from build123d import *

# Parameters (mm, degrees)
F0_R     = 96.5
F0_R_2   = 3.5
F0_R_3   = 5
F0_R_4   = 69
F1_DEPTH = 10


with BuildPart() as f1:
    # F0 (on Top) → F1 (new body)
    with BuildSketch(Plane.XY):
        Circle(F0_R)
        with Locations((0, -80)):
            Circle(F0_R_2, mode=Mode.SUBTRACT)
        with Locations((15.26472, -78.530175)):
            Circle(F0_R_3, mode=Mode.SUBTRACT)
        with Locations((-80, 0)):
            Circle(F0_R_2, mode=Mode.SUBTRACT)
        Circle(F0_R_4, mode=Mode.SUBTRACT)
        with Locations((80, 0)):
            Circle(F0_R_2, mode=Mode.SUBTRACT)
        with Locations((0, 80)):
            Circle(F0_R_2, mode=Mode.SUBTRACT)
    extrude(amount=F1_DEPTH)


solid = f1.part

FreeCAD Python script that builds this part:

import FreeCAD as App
import Part
import Sketcher

doc = App.newDocument("Part")
params = doc.addObject("Spreadsheet::Sheet", "Params")
for row, (alias, value) in enumerate([
    ("sketch1_diameter", "193 mm"),
    ("sketch1_diameter2", "7 mm"),
    ("sketch1_diameter3", "10 mm"),
    ("sketch1_diameter4", "138 mm"),
    ("pad1_length", "10 mm"),
], start=1):
    params.set(f"A{row}", alias)
    params.set(f"B{row}", "=" + value)
    params.setAlias(f"B{row}", alias)

body = doc.addObject("PartDesign::Body", "Body")

# Sketch on XY plane
sketch1 = body.newObject("Sketcher::SketchObject", "Sketch")
sketch1.AttachmentSupport = (doc.getObject("XY_Plane"), [""])
sketch1.MapMode = "FlatFace"
sketch1.addGeometry(Part.Circle(App.Vector(0, 0, 0), App.Vector(0, 0, 1), 96.5), False)
sketch1.addGeometry(Part.Circle(App.Vector(0, -80, 0), App.Vector(0, 0, 1), 3.5), False)
sketch1.addGeometry(Part.Circle(App.Vector(15.3, -78.5, 0), App.Vector(0, 0, 1), 5), False)
sketch1.addGeometry(Part.Circle(App.Vector(-80, 0, 0), App.Vector(0, 0, 1), 3.5), False)
sketch1.addGeometry(Part.Circle(App.Vector(0, 0, 0), App.Vector(0, 0, 1), 69), False)
sketch1.addGeometry(Part.Circle(App.Vector(80, 0, 0), App.Vector(0, 0, 1), 3.5), False)
sketch1.addGeometry(Part.Circle(App.Vector(0, 80, 0), App.Vector(0, 0, 1), 3.5), False)
sketch1.addConstraint(Sketcher.Constraint("Coincident", 0, 3, -1, 1))
sketch1.addConstraint(Sketcher.Constraint("Coincident", 4, 3, -1, 1))
sketch1.addConstraint(Sketcher.Constraint("Equal", 1, 3))
sketch1.addConstraint(Sketcher.Constraint("Equal", 3, 5))
sketch1.addConstraint(Sketcher.Constraint("Equal", 5, 6))
sketch1.addConstraint(Sketcher.Constraint("Symmetric", 3, 3, 5, 3, -1, 1))
sketch1.addConstraint(Sketcher.Constraint("Symmetric", 1, 3, 6, 3, -1, 1))
sketch1.addConstraint(Sketcher.Constraint("PointOnObject", 1, 3, -2))
sketch1.addConstraint(Sketcher.Constraint("PointOnObject", 3, 3, -1))
sketch1.addConstraint(Sketcher.Constraint("Diameter", 0, 193.0))
sketch1.addConstraint(Sketcher.Constraint("Diameter", 1, 7.0))
sketch1.addConstraint(Sketcher.Constraint("Diameter", 2, 10.0))
sketch1.addConstraint(Sketcher.Constraint("Diameter", 4, 138.0))
sketch1.addConstraint(Sketcher.Constraint("DistanceY", 1, 3, -1, 1, 80.0))
sketch1.addConstraint(Sketcher.Constraint("DistanceX", 3, 3, -1, 1, 80.0))
sketch1.addConstraint(Sketcher.Constraint("DistanceX", -1, 1, 2, 3, 15.26472))
sketch1.addConstraint(Sketcher.Constraint("DistanceY", 2, 3, -1, 1, 78.530175))
sketch1.setExpression("Constraints[9]", "Params.sketch1_diameter")
sketch1.setExpression("Constraints[10]", "Params.sketch1_diameter2")
sketch1.setExpression("Constraints[11]", "Params.sketch1_diameter3")
sketch1.setExpression("Constraints[12]", "Params.sketch1_diameter4")
pad1 = body.newObject("PartDesign::Pad", "Pad")
pad1.Profile = sketch1
pad1.setExpression("Length", "Params.pad1_length")

doc.recompute()
